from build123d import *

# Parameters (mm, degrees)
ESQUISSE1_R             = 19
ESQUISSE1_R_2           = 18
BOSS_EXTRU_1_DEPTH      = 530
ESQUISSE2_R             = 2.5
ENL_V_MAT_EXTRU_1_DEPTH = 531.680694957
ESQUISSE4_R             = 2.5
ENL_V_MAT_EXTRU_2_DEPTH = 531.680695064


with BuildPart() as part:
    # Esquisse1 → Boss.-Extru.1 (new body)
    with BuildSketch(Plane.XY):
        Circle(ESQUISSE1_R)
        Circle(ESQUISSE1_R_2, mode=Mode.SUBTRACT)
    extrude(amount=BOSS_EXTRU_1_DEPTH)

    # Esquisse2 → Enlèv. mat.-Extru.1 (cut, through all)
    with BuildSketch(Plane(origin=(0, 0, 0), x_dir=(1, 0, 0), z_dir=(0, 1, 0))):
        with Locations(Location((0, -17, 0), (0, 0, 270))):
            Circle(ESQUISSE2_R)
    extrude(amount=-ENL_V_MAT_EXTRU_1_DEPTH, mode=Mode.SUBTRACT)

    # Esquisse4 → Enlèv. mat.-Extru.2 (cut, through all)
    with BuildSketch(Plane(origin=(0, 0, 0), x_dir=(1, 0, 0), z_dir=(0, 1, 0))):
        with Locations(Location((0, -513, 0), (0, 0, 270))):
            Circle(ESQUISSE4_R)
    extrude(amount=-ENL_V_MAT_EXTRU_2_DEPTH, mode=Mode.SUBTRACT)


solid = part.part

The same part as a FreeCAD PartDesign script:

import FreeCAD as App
import Part
import Sketcher

V = App.Vector

doc = App.newDocument("Part")
body = doc.addObject("PartDesign::Body", "Body")

sketch1 = body.newObject("Sketcher::SketchObject", "Sketch")
sketch1.AttachmentSupport = (doc.getObject("XY_Plane"), [""])
sketch1.MapMode = "FlatFace"
sketch1.addGeometry([
    Part.Circle(V(0, 0, 0), V(0, 0, 1), 19),
    Part.Circle(V(0, 0, 0), V(0, 0, 1), 18),
], False)
sketch1.addConstraint([
    Sketcher.Constraint("Coincident", 0, 3, -1, 1),
    Sketcher.Constraint("Coincident", 1, 3, -1, 1),
    Sketcher.Constraint("Diameter", 0, 38.0),
    Sketcher.Constraint("Diameter", 1, 36.0),
])
pad1 = body.newObject("PartDesign::Pad", "Pad")
pad1.Profile = sketch1
pad1.Length = 530

sketch2 = body.newObject("Sketcher::SketchObject", "Sketch001")
sketch2.AttachmentSupport = (doc.getObject("XZ_Plane"), [""])
sketch2.MapMode = "FlatFace"
sketch2.addGeometry(Part.Circle(V(0, 17, 0), V(0, 0, 1), 2.5), False)
sketch2.addConstraint([
    Sketcher.Constraint("PointOnObject", 0, 3, -2),
    Sketcher.Constraint("Diameter", 0, 5.0),
    Sketcher.Constraint("DistanceY", -1, 1, 0, 3, 17.0),
])
pocket1 = body.newObject("PartDesign::Pocket", "Pocket")
pocket1.Profile = sketch2
pocket1.Type = "ThroughAll"
pocket1.Reversed = True

sketch3 = body.newObject("Sketcher::SketchObject", "Sketch002")
sketch3.AttachmentSupport = (doc.getObject("XZ_Plane"), [""])
sketch3.MapMode = "FlatFace"
sketch3.addGeometry(Part.Circle(V(0, 513, 0), V(0, 0, 1), 2.5), False)
sketch3.addConstraint([
    Sketcher.Constraint("PointOnObject", 0, 3, -2),
    Sketcher.Constraint("Diameter", 0, 5.0),
    Sketcher.Constraint("DistanceY", -1, 1, 0, 3, 513.0),
])
pocket2 = body.newObject("PartDesign::Pocket", "Pocket001")
pocket2.Profile = sketch3
pocket2.Type = "ThroughAll"
pocket2.Reversed = True

doc.recompute()
